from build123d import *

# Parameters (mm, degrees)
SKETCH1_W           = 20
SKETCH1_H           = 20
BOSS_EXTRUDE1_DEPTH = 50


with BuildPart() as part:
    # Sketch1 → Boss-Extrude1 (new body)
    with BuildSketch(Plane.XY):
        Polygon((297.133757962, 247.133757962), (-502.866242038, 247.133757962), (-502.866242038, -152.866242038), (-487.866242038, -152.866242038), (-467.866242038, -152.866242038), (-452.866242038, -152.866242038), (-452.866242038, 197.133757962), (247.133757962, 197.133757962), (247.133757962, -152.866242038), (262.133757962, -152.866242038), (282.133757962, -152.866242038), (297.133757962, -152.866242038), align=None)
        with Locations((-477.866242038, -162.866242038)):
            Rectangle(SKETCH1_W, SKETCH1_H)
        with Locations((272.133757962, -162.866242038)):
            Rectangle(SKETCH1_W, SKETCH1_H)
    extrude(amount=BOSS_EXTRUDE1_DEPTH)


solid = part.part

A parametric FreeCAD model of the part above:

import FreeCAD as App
import Part
import Sketcher

V = App.Vector
Q = App.Units.Quantity


def add_polygon(sketch, points):
    """Adds a closed chain of lines whose ends are joined by coincident constraints."""
    first, n = sketch.GeometryCount, len(points)
    for a, b in zip(points, points[1:] + points[:1]):
        sketch.addGeometry(Part.LineSegment(App.Vector(*a, 0), App.Vector(*b, 0)), False)
    for i in range(n):
        sketch.addConstraint(Sketcher.Constraint("Coincident", first + i, 2, first + (i + 1) % n, 1))

doc = App.newDocument("Part")
params = doc.addObject("Spreadsheet::Sheet", "Params")
for row, (alias, value) in enumerate([
    ("sketch1_width", "800 mm"),
    ("sketch1_width2", "15 mm"),
    ("sketch1_width3", "20 mm"),
    ("sketch1_height", "400 mm"),
    ("sketch1_height2", "350 mm"),
    ("pad1_length", "50 mm"),
], start=1):
    params.set(f"A{row}", alias)
    params.set(f"B{row}", "=" + value)
    params.setAlias(f"B{row}", alias)

body = doc.addObject("PartDesign::Body", "Body")

sketch1 = doc.addObject("Sketcher::SketchObject", "Sketch")
body.addObject(sketch1)
sketch1.AttachmentSupport = (doc.XY_Plane, [""])
sketch1.MapMode = "FlatFace"
add_polygon(sketch1, [(297, 247), (-503, 247), (-503, -153), (-488, -153), (-488, -173), (-468, -173), (-468, -153), (-453, -153), (-453, 197), (247, 197), (247, -153), (262, -153), (262, -173), (282, -173), (282, -153), (297, -153)])
sketch1.addConstraint([
    Sketcher.Constraint("Horizontal", 0),
    Sketcher.Constraint("Vertical", 1),
    Sketcher.Constraint("Horizontal", 2),
    Sketcher.Constraint("Vertical", 3),
    Sketcher.Constraint("Horizontal", 4),
    Sketcher.Constraint("Vertical", 5),
    Sketcher.Constraint("Horizontal", 6),
    Sketcher.Constraint("Vertical", 7),
    Sketcher.Constraint("Horizontal", 8),
    Sketcher.Constraint("Vertical", 9),
    Sketcher.Constraint("Horizontal", 10),
    Sketcher.Constraint("Vertical", 11),
    Sketcher.Constraint("Horizontal", 12),
    Sketcher.Constraint("Vertical", 13),
    Sketcher.Constraint("Horizontal", 14),
    Sketcher.Constraint("Vertical", 15),
    Sketcher.Constraint("Horizontal", 2, 2, 5, 2),
    Sketcher.Constraint("Horizontal", 6, 2, 9, 2),
    Sketcher.Constraint("Horizontal", 4, 2, 11, 2),
    Sketcher.Constraint("Horizontal", 10, 2, 13, 2),
    Sketcher.Constraint("Equal", 2, 6),
    Sketcher.Constraint("Equal", 6, 10),
    Sketcher.Constraint("Equal", 4, 12),
    Sketcher.Constraint("Equal", 10, 14),
    Sketcher.Constraint("Equal", 12, 3),
    Sketcher.Constraint("DistanceX", 0, 2, 0, 1, Q("800 mm")),
    Sketcher.Constraint("DistanceX", 2, 1, 2, 2, Q("15 mm")),
    Sketcher.Constraint("DistanceX", 4, 1, 4, 2, Q("20 mm")),
    Sketcher.Constraint("DistanceY", 1, 2, 1, 1, Q("400 mm")),
    Sketcher.Constraint("DistanceY", 7, 1, 7, 2, Q("350 mm")),
    Sketcher.Constraint("DistanceX", 0, 2, -1, 1, Q("502.866242 mm")),
    Sketcher.Constraint("DistanceY", -1, 1, 0, 2, Q("247.133758 mm")),
])
sketch1.setExpression("Constraints[41]", "Params.sketch1_width")
sketch1.setExpression("Constraints[42]", "Params.sketch1_width2")
sketch1.setExpression("Constraints[43]", "Params.sketch1_width3")
sketch1.setExpression("Constraints[44]", "Params.sketch1_height")
sketch1.setExpression("Constraints[45]", "Params.sketch1_height2")
pad1 = doc.addObject("PartDesign::Pad", "Pad")
body.addObject(pad1)
pad1.Profile = sketch1
pad1.setExpression("Length", "Params.pad1_length")

doc.recompute()
